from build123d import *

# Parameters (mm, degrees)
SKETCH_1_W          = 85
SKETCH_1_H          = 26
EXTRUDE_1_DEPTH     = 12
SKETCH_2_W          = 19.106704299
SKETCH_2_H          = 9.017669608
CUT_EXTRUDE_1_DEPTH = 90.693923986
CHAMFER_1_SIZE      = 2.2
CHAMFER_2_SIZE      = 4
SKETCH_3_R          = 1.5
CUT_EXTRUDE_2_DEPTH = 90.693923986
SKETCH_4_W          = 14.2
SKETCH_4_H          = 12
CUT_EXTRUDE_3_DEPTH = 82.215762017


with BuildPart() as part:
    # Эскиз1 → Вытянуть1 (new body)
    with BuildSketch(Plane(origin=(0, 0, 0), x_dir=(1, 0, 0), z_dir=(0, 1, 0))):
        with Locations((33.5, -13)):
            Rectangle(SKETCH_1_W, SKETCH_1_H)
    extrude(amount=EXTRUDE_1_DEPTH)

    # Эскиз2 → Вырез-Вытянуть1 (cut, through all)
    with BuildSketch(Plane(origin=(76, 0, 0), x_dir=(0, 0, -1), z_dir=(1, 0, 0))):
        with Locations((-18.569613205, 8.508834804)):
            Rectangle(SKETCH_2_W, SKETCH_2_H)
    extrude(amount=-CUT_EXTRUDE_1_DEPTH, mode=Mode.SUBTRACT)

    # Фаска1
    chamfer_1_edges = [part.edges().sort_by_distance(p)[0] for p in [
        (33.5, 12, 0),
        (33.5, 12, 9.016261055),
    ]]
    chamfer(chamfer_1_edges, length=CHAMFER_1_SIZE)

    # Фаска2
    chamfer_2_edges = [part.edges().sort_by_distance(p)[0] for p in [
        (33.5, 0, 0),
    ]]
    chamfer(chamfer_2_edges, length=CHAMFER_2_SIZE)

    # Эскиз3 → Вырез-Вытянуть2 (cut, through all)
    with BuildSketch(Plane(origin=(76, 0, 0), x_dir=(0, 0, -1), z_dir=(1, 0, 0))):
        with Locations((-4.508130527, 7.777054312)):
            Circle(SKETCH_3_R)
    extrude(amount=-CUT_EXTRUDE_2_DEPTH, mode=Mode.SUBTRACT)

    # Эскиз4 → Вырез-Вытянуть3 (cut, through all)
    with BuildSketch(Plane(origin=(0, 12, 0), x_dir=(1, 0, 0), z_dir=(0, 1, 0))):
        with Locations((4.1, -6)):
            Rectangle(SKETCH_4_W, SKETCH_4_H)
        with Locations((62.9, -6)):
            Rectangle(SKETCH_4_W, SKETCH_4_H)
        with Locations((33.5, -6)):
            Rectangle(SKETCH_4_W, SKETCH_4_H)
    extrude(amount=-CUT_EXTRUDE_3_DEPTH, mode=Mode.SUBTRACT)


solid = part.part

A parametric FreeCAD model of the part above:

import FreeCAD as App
import Part
import Sketcher

V = App.Vector


def edges_at(feature, points):
    """Names of the edges that pass closest to the given points."""
    edges = feature.Shape.Edges
    near = lambda p: min(range(len(edges)), key=lambda i: edges[i].distToShape(Part.Vertex(*p))[0])
    return sorted({f"Edge{near(p) + 1}" for p in points})

doc = App.newDocument("Part")
params = doc.addObject("Spreadsheet::Sheet", "Params")
for row, (alias, value) in enumerate([
    ("sketch1_width", "85 mm"),
    ("sketch1_height", "26 mm"),
    ("pad1_length", "12 mm"),
    ("chamfer_size", "2.2 mm"),
    ("chamfer2_size", "4 mm"),
    ("sketch3_diameter", "3 mm"),
    ("sketch4_height", "12 mm"),
    ("sketch4_width", "14.2 mm"),
], start=1):
    params.set(f"A{row}", alias)
    params.set(f"B{row}", "=" + value)
    params.setAlias(f"B{row}", alias)

body = doc.addObject("PartDesign::Body", "Body")

# Sketch on XZ plane
sketch1 = body.newObject("Sketcher::SketchObject", "Sketch")
sketch1.AttachmentSupport = (doc.getObject("XZ_Plane"), [""])
sketch1.MapMode = "FlatFace"
sketch1.addGeometry(Part.LineSegment(V(-9, 0, 0), V(-9, 26, 0)), False)
sketch1.addGeometry(Part.LineSegment(V(-9, 26, 0), V(76, 26, 0)), False)
sketch1.addGeometry(Part.LineSegment(V(76, 26, 0), V(76, 0, 0)), False)
sketch1.addGeometry(Part.LineSegment(V(76, 0, 0), V(-9, 0, 0)), False)
sketch1.addConstraint(Sketcher.Constraint("Coincident", 0, 2, 1, 1))
sketch1.addConstraint(Sketcher.Constraint("Coincident", 1, 2, 2, 1))
sketch1.addConstraint(Sketcher.Constraint("Coincident", 2, 2, 3, 1))
sketch1.addConstraint(Sketcher.Constraint("Coincident", 3, 2, 0, 1))
sketch1.addConstraint(Sketcher.Constraint("Vertical", 0))
sketch1.addConstraint(Sketcher.Constraint("Horizontal", 1))
sketch1.addConstraint(Sketcher.Constraint("Vertical", 2))
sketch1.addConstraint(Sketcher.Constraint("Horizontal", 3))
sketch1.addConstraint(Sketcher.Constraint("PointOnObject", 2, 2, -1))
sketch1.addConstraint(Sketcher.Constraint("DistanceX", 1, 1, 1, 2, 85.0))
sketch1.addConstraint(Sketcher.Constraint("DistanceY", 0, 1, 0, 2, 26.0))
sketch1.addConstraint(Sketcher.Constraint("DistanceX", 0, 2, -1, 1, 9.0))
sketch1.setExpression("Constraints[9]", "Params.sketch1_width")
sketch1.setExpression("Constraints[10]", "Params.sketch1_height")
pad1 = body.newObject("PartDesign::Pad", "Pad")
pad1.Profile = sketch1
pad1.setExpression("Length", "Params.pad1_length")
pad1.Reversed = True

# Sketch on YZ plane
sketch2 = body.newObject("Sketcher::SketchObject", "Sketch001")
sketch2.AttachmentSupport = (doc.getObject("YZ_Plane"), [""])
sketch2.MapMode = "FlatFace"
sketch2.AttachmentOffset = App.Placement(V(0, 0, 76), App.Rotation())
sketch2.addGeometry(Part.LineSegment(V(13, 28, 0), V(4, 28, 0)), False)
sketch2.addGeometry(Part.LineSegment(V(4, 28, 0), V(4, 9, 0)), False)
sketch2.addGeometry(Part.LineSegment(V(4, 9, 0), V(13, 9, 0)), False)
sketch2.addGeometry(Part.LineSegment(V(13, 9, 0), V(13, 28, 0)), False)
sketch2.addConstraint(Sketcher.Constraint("Coincident", 0, 2, 1, 1))
sketch2.addConstraint(Sketcher.Constraint("Coincident", 1, 2, 2, 1))
sketch2.addConstraint(Sketcher.Constraint("Coincident", 2, 2, 3, 1))
sketch2.addConstraint(Sketcher.Constraint("Coincident", 3, 2, 0, 1))
sketch2.addConstraint(Sketcher.Constraint("Horizontal", 0))
sketch2.addConstraint(Sketcher.Constraint("Vertical", 1))
sketch2.addConstraint(Sketcher.Constraint("Horizontal", 2))
sketch2.addConstraint(Sketcher.Constraint("Vertical", 3))
sketch2.addConstraint(Sketcher.Constraint("DistanceX", -1, 1, 0, 2, 4.0))
sketch2.addConstraint(Sketcher.Constraint("DistanceX", 0, 2, 0, 1, 9.01767))
sketch2.addConstraint(Sketcher.Constraint("DistanceY", 1, 2, 1, 1, 19.106704))
sketch2.addConstraint(Sketcher.Constraint("DistanceY", -1, 1, 1, 2, 9.016261))
pocket1 = body.newObject("PartDesign::Pocket", "Pocket")
pocket1.Profile = sketch2
pocket1.Type = "ThroughAll"
doc.recompute()

chamfer = body.newObject("PartDesign::Chamfer", "Chamfer")
chamfer.Base = (pocket1, edges_at(pocket1, [(33.5, 12, 0), (33.5, 12, 9.016)]))
chamfer.setExpression("Size", "Params.chamfer_size")
doc.recompute()

chamfer2 = body.newObject("PartDesign::Chamfer", "Chamfer001")
chamfer2.Base = (chamfer, edges_at(chamfer, [(33.5, 0, 0)]))
chamfer2.setExpression("Size", "Params.chamfer2_size")

# Sketch on YZ plane
sketch3 = body.newObject("Sketcher::SketchObject", "Sketch002")
sketch3.AttachmentSupport = (doc.getObject("YZ_Plane"), [""])
sketch3.MapMode = "FlatFace"
sketch3.AttachmentOffset = App.Placement(V(0, 0, 76), App.Rotation())
sketch3.addGeometry(Part.Circle(V(7.8, 4.5, 0), V(0, 0, 1), 1.5), False)
sketch3.addConstraint(Sketcher.Constraint("Diameter", 0, 3.0))
sketch3.addConstraint(Sketcher.Constraint("DistanceY", -1, 1, 0, 3, 4.508131))
sketch3.addConstraint(Sketcher.Constraint("DistanceX", -1, 1, 0, 3, 7.777054))
sketch3.setExpression("Constraints[0]", "Params.sketch3_diameter")
pocket2 = body.newObject("PartDesign::Pocket", "Pocket001")
pocket2.Profile = sketch3
pocket2.Type = "ThroughAll"

# Sketch on XZ plane
sketch4 = body.newObject("Sketcher::SketchObject", "Sketch003")
sketch4.AttachmentSupport = (doc.getObject("XZ_Plane"), [""])
sketch4.MapMode = "FlatFace"
sketch4.AttachmentOffset = App.Placement(V(0, 0, -12), App.Rotation())
sketch4.addGeometry(Part.LineSegment(V(-3, 0, 0), V(-3, 12, 0)), False)
sketch4.addGeometry(Part.LineSegment(V(-3, 12, 0), V(11, 12, 0)), False)
sketch4.addGeometry(Part.LineSegment(V(11, 12, 0), V(11, 0, 0)), False)
sketch4.addGeometry(Part.LineSegment(V(11, 0, 0), V(-3, 0, 0)), False)
sketch4.addGeometry(Part.LineSegment(V(56, 0, 0), V(56, 12, 0)), False)
sketch4.addGeometry(Part.LineSegment(V(56, 12, 0), V(70, 12, 0)), False)
sketch4.addGeometry(Part.LineSegment(V(70, 12, 0), V(70, 0, 0)), False)
sketch4.addGeometry(Part.LineSegment(V(70, 0, 0), V(56, 0, 0)), False)
sketch4.addGeometry(Part.LineSegment(V(26, 0, 0), V(26, 12, 0)), False)
sketch4.addGeometry(Part.LineSegment(V(26, 12, 0), V(41, 12, 0)), False)
sketch4.addGeometry(Part.LineSegment(V(41, 12, 0), V(41, 0, 0)), False)
sketch4.addGeometry(Part.LineSegment(V(41, 0, 0), V(26, 0, 0)), False)
sketch4.addConstraint(Sketcher.Constraint("Coincident", 0, 2, 1, 1))
sketch4.addConstraint(Sketcher.Constraint("Coincident", 1, 2, 2, 1))
sketch4.addConstraint(Sketcher.Constraint("Coincident", 2, 2, 3, 1))
sketch4.addConstraint(Sketcher.Constraint("Coincident", 3, 2, 0, 1))
sketch4.addConstraint(Sketcher.Constraint("Coincident", 4, 2, 5, 1))
sketch4.addConstraint(Sketcher.Constraint("Coincident", 5, 2, 6, 1))
sketch4.addConstraint(Sketcher.Constraint("Coincident", 6, 2, 7, 1))
sketch4.addConstraint(Sketcher.Constraint("Coincident", 7, 2, 4, 1))
sketch4.addConstraint(Sketcher.Constraint("Coincident", 8, 2, 9, 1))
sketch4.addConstraint(Sketcher.Constraint("Coincident", 9, 2, 10, 1))
sketch4.addConstraint(Sketcher.Constraint("Coincident", 10, 2, 11, 1))
sketch4.addConstraint(Sketcher.Constraint("Coincident", 11, 2, 8, 1))
sketch4.addConstraint(Sketcher.Constraint("Vertical", 0))
sketch4.addConstraint(Sketcher.Constraint("Horizontal", 1))
sketch4.addConstraint(Sketcher.Constraint("Vertical", 2))
sketch4.addConstraint(Sketcher.Constraint("Horizontal", 3))
sketch4.addConstraint(Sketcher.Constraint("Vertical", 4))
sketch4.addConstraint(Sketcher.Constraint("Horizontal", 5))
sketch4.addConstraint(Sketcher.Constraint("Vertical", 6))
sketch4.addConstraint(Sketcher.Constraint("Horizontal", 7))
sketch4.addConstraint(Sketcher.Constraint("Vertical", 8))
sketch4.addConstraint(Sketcher.Constraint("Horizontal", 9))
sketch4.addConstraint(Sketcher.Constraint("Vertical", 10))
sketch4.addConstraint(Sketcher.Constraint("Horizontal", 11))
sketch4.addConstraint(Sketcher.Constraint("PointOnObject", 2, 2, -1))
sketch4.addConstraint(Sketcher.Constraint("PointOnObject", 6, 2, -1))
sketch4.addConstraint(Sketcher.Constraint("PointOnObject", 10, 2, -1))
sketch4.addConstraint(Sketcher.Constraint("Horizontal", 1, 2, 4, 2))
sketch4.addConstraint(Sketcher.Constraint("Horizontal", 5, 2, 8, 2))
sketch4.addConstraint(Sketcher.Constraint("Equal", 3, 5))
sketch4.addConstraint(Sketcher.Constraint("Equal", 7, 9))
sketch4.addConstraint(Sketcher.Constraint("DistanceY", 0, 1, 0, 2, 12.0))
sketch4.addConstraint(Sketcher.Constraint("DistanceX", 1, 1, 1, 2, 14.2))
sketch4.addConstraint(Sketcher.Constraint("DistanceX", 0, 2, -1, 1, 3.0))
sketch4.addConstraint(Sketcher.Constraint("DistanceX", -1, 1, 5, 2, 70.0))
sketch4.addConstraint(Sketcher.Constraint("DistanceX", -1, 1, 8, 2, 26.4))
sketch4.setExpression("Constraints[31]", "Params.sketch4_height")
sketch4.setExpression("Constraints[32]", "Params.sketch4_width")
pocket3 = body.newObject("PartDesign::Pocket", "Pocket002")
pocket3.Profile = sketch4
pocket3.Type = "ThroughAll"
pocket3.Reversed = True

doc.recompute()
